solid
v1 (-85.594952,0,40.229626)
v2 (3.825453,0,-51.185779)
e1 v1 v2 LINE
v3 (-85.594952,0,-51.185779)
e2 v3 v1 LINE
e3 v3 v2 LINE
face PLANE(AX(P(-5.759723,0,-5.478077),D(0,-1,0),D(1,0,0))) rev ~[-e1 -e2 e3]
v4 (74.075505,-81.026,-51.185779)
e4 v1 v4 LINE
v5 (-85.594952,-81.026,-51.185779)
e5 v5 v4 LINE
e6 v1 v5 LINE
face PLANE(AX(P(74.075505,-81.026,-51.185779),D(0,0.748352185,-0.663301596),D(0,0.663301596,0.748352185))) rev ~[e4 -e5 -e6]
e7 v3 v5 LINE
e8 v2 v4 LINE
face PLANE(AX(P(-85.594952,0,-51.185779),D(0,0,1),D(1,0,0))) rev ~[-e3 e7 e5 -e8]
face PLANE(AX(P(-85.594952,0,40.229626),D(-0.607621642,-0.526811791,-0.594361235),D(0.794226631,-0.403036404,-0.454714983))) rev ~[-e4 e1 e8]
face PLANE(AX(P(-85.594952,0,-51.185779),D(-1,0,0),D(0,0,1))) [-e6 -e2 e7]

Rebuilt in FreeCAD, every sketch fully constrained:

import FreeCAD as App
import Part
import Sketcher

V = App.Vector
Q = App.Units.Quantity

doc = App.newDocument("Part")
body = doc.addObject("PartDesign::Body", "Body")

# Sketch on XZ plane
sketch1 = body.newObject("Sketcher::SketchObject", "Sketch")
sketch1.AttachmentSupport = (doc.getObject("XZ_Plane"), [""])
sketch1.MapMode = "FlatFace"
sketch1.addGeometry([
    Part.LineSegment(V(-86, 40, 0), V(-86, -51, 0)),
    Part.LineSegment(V(-86, -51, 0), V(74, -51, 0)),
    Part.LineSegment(V(74, -51, 0), V(74, 40, 0)),
    Part.LineSegment(V(74, 40, 0), V(-86, 40, 0)),
], False)
sketch1.addConstraint([
    Sketcher.Constraint("Coincident", 0, 2, 1, 1),
    Sketcher.Constraint("Coincident", 1, 2, 2, 1),
    Sketcher.Constraint("Coincident", 2, 2, 3, 1),
    Sketcher.Constraint("Coincident", 3, 2, 0, 1),
    Sketcher.Constraint("Vertical", 0),
    Sketcher.Constraint("Horizontal", 1),
    Sketcher.Constraint("Vertical", 2),
    Sketcher.Constraint("Horizontal", 3),
    Sketcher.Constraint("DistanceX", 1, 1, 1, 2, Q("159.670457 mm")),
    Sketcher.Constraint("DistanceY", 0, 2, 0, 1, Q("91.415405 mm")),
    Sketcher.Constraint("DistanceY", 0, 2, -1, 1, Q("51.185779 mm")),
    Sketcher.Constraint("DistanceX", 0, 2, -1, 1, Q("85.594952 mm")),
])
pad1 = body.newObject("PartDesign::Pad", "Pad")
pad1.Profile = sketch1
pad1.Length = Q("3.19 in")

# Sketch on YZ plane
sketch2 = body.newObject("Sketcher::SketchObject", "Sketch001")
sketch2.AttachmentSupport = (doc.getObject("YZ_Plane"), [""])
sketch2.MapMode = "FlatFace"
sketch2.AttachmentOffset = App.Placement(V(0, 0, 74.075505), App.Rotation())
sketch2.addGeometry([
    Part.LineSegment(V(-81, -51, 0), V(0, 40, 0)),
    Part.LineSegment(V(0, 40, 0), V(-81, 40, 0)),
    Part.LineSegment(V(-81, 40, 0), V(-81, -51, 0)),
], False)
sketch2.addConstraint([
    Sketcher.Constraint("Coincident", 0, 2, 1, 1),
    Sketcher.Constraint("Coincident", 1, 2, 2, 1),
    Sketcher.Constraint("Coincident", 2, 2, 0, 1),
    Sketcher.Constraint("Horizontal", 1),
    Sketcher.Constraint("Vertical", 2),
    Sketcher.Constraint("PointOnObject", 0, 2, -2),
    Sketcher.Constraint("DistanceX", 1, 2, 1, 1, Q("3.19 in")),
    Sketcher.Constraint("DistanceY", 2, 2, 2, 1, Q("91.415405 mm")),
    Sketcher.Constraint("DistanceY", 2, 2, -1, 1, Q("51.185779 mm")),
])
pocket1 = body.newObject("PartDesign::Pocket", "Pocket")
pocket1.Profile = sketch2
pocket1.Type = "ThroughAll"

# Sketch on an angled plane
sketch3 = body.newObject("Sketcher::SketchObject", "Sketch002")
sketch3.Placement = App.Placement(V(0, -19.96931, 17.699789), App.Rotation(V(1, 0, 0), V(0, 0.663301596, 0.748352185), V(0, -0.748352185, 0.663301596), "ZXY"))
sketch3.addGeometry([
    Part.LineSegment(V(74, 30, 0), V(-86, 30, 0)),
    Part.LineSegment(V(-86, 30, 0), V(74, -92, 0)),
    Part.LineSegment(V(74, -92, 0), V(74, 30, 0)),
], False)
sketch3.addConstraint([
    Sketcher.Constraint("Coincident", 0, 2, 1, 1),
    Sketcher.Constraint("Coincident", 1, 2, 2, 1),
    Sketcher.Constraint("Coincident", 2, 2, 0, 1),
    Sketcher.Constraint("Horizontal", 0),
    Sketcher.Constraint("Vertical", 2),
    Sketcher.Constraint("Distance", 1, Q("201.038911 mm")),
    Sketcher.Constraint("DistanceX", 0, 2, 0, 1, Q("159.670457 mm")),
    Sketcher.Constraint("DistanceY", -1, 1, 0, 2, Q("30.105929 mm")),
    Sketcher.Constraint("DistanceX", 0, 2, -1, 1, Q("85.594952 mm")),
])
pocket2 = body.newObject("PartDesign::Pocket", "Pocket001")
pocket2.Profile = sketch3
pocket2.Type = "ThroughAll"

doc.recompute()
